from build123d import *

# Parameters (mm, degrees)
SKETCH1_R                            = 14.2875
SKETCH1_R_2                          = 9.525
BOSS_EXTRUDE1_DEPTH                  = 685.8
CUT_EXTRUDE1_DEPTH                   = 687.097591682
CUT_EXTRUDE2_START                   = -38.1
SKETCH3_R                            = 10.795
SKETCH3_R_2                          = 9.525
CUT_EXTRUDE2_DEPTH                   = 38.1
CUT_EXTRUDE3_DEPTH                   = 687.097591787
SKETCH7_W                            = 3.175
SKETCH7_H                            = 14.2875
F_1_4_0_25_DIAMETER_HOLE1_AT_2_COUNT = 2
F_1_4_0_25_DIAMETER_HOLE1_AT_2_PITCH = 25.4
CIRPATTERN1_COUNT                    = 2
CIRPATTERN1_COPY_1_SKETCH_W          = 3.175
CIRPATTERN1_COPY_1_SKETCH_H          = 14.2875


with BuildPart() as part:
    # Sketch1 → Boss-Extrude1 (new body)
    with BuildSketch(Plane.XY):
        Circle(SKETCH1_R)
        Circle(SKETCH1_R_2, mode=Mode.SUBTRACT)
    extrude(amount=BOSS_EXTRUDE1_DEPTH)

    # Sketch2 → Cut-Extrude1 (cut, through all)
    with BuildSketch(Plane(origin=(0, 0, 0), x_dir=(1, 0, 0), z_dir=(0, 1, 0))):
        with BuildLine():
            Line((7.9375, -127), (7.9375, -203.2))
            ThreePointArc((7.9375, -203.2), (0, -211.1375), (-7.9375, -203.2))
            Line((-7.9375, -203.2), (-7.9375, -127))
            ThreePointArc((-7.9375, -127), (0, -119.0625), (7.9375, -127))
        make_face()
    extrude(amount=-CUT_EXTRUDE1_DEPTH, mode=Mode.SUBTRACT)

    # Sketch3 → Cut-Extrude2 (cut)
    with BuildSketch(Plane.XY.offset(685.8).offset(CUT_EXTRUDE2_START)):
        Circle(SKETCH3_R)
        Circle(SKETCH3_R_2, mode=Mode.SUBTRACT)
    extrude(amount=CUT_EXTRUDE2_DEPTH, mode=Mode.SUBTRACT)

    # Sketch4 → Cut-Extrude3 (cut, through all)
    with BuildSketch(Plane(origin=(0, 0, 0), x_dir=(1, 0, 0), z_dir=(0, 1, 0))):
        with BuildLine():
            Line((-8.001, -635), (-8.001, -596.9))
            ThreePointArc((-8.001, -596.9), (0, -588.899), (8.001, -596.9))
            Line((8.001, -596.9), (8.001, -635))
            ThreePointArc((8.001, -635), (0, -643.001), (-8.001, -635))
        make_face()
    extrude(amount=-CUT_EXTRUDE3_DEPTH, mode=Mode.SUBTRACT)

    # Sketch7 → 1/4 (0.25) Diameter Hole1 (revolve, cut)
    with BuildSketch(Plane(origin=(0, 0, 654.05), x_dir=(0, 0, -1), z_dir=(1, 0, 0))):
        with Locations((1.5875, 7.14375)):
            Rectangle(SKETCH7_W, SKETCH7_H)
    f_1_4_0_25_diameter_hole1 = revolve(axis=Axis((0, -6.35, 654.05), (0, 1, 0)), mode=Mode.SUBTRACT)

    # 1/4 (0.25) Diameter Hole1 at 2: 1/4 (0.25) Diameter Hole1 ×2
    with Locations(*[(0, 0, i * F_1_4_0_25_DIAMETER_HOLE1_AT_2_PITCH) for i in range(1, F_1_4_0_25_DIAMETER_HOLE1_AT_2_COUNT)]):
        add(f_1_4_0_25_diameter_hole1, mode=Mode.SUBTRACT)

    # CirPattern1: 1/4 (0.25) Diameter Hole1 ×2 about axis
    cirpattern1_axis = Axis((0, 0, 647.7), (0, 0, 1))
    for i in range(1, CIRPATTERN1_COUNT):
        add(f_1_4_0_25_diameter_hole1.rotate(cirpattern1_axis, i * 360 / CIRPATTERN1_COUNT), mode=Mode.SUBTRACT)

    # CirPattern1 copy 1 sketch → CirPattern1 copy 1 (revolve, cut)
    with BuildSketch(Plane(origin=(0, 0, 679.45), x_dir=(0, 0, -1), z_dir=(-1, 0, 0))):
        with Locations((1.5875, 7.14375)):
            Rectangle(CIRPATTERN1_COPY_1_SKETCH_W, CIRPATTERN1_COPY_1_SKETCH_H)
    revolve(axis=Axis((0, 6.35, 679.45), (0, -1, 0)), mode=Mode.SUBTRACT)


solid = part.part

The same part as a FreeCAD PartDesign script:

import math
import FreeCAD as App
import Part
import Sketcher
Q = App.Units.Quantity

doc = App.newDocument("Part")
body = doc.addObject("PartDesign::Body", "Body")

# Sketch on XY plane
sketch1 = body.newObject("Sketcher::SketchObject", "Sketch")
sketch1.AttachmentSupport = (doc.getObject("XY_Plane"), [""])
sketch1.MapMode = "FlatFace"
sketch1.addGeometry(Part.Circle(App.Vector(0, 0, 0), App.Vector(0, 0, 1), 14), False)
sketch1.addGeometry(Part.Circle(App.Vector(0, 0, 0), App.Vector(0, 0, 1), 10), False)
sketch1.addConstraint(Sketcher.Constraint("Coincident", 0, 3, -1, 1))
sketch1.addConstraint(Sketcher.Constraint("Coincident", 1, 3, -1, 1))
sketch1.addConstraint(Sketcher.Constraint("Diameter", 1, Q("0.75 in")))
sketch1.addConstraint(Sketcher.Constraint("Diameter", 0, Q("1.125 in")))
pad1 = body.newObject("PartDesign::Pad", "Pad")
pad1.Profile = sketch1
pad1.Length = Q("27 in")

# Sketch on XZ plane
sketch2 = body.newObject("Sketcher::SketchObject", "Sketch001")
sketch2.AttachmentSupport = (doc.getObject("XZ_Plane"), [""])
sketch2.MapMode = "FlatFace"
sketch2.addGeometry(Part.LineSegment(App.Vector(8, 203, 0), App.Vector(8, 127, 0)), False)
sketch2.addGeometry(Part.ArcOfCircle(Part.Circle(App.Vector(0, 127, 0), App.Vector(0, 0, 1), 8), math.radians(180), math.radians(360)), False)
sketch2.addGeometry(Part.LineSegment(App.Vector(-8, 127, 0), App.Vector(-8, 203, 0)), False)
sketch2.addGeometry(Part.ArcOfCircle(Part.Circle(App.Vector(0, 203, 0), App.Vector(0, 0, 1), 8), math.radians(0), math.radians(180)), False)
sketch2.addConstraint(Sketcher.Constraint("Tangent", 0, 2, 1, 2))
sketch2.addConstraint(Sketcher.Constraint("Tangent", 1, 1, 2, 1))
sketch2.addConstraint(Sketcher.Constraint("Tangent", 2, 2, 3, 2))
sketch2.addConstraint(Sketcher.Constraint("Tangent", 3, 1, 0, 1))
sketch2.addConstraint(Sketcher.Constraint("Vertical", 0))
sketch2.addConstraint(Sketcher.Constraint("Vertical", 2))
sketch2.addConstraint(Sketcher.Constraint("PointOnObject", 1, 3, -2))
sketch2.addConstraint(Sketcher.Constraint("DistanceY", 0, 2, 0, 1, Q("3 in")))
sketch2.addConstraint(Sketcher.Constraint("DistanceY", -1, 1, 1, 3, Q("5 in")))
sketch2.addConstraint(Sketcher.Constraint("Radius", 1, Q("0.3125 in")))
pocket1 = body.newObject("PartDesign::Pocket", "Pocket")
pocket1.Profile = sketch2
pocket1.Type = "ThroughAll"
pocket1.Reversed = True

# Sketch on XY plane
sketch3 = body.newObject("Sketcher::SketchObject", "Sketch002")
sketch3.AttachmentSupport = (doc.getObject("XY_Plane"), [""])
sketch3.MapMode = "FlatFace"
sketch3.AttachmentOffset = App.Placement(App.Vector(0, 0, 25.5 * 25.4), App.Rotation())
sketch3.addGeometry(Part.Circle(App.Vector(0, 0, 0), App.Vector(0, 0, 1), 11), False)
sketch3.addGeometry(Part.Circle(App.Vector(0, 0, 0), App.Vector(0, 0, 1), 10), False)
sketch3.addConstraint(Sketcher.Constraint("Coincident", 0, 3, -1, 1))
sketch3.addConstraint(Sketcher.Constraint("Coincident", 1, 3, -1, 1))
sketch3.addConstraint(Sketcher.Constraint("Diameter", 0, Q("0.85 in")))
sketch3.addConstraint(Sketcher.Constraint("Diameter", 1, Q("0.75 in")))
pocket2 = body.newObject("PartDesign::Pocket", "Pocket001")
pocket2.Profile = sketch3
pocket2.Length = Q("1.5 in")
pocket2.Reversed = True

# Sketch on XZ plane
sketch4 = body.newObject("Sketcher::SketchObject", "Sketch003")
sketch4.AttachmentSupport = (doc.getObject("XZ_Plane"), [""])
sketch4.MapMode = "FlatFace"
sketch4.addGeometry(Part.LineSegment(App.Vector(-8, 597, 0), App.Vector(-8, 635, 0)), False)
sketch4.addGeometry(Part.ArcOfCircle(Part.Circle(App.Vector(0, 635, 0), App.Vector(0, 0, 1), 8), math.radians(0), math.radians(180)), False)
sketch4.addGeometry(Part.LineSegment(App.Vector(8, 635, 0), App.Vector(8, 597, 0)), False)
sketch4.addGeometry(Part.ArcOfCircle(Part.Circle(App.Vector(0, 597, 0), App.Vector(0, 0, 1), 8), math.radians(180), math.radians(360)), False)
sketch4.addConstraint(Sketcher.Constraint("Tangent", 0, 2, 1, 2))
sketch4.addConstraint(Sketcher.Constraint("Tangent", 1, 1, 2, 1))
sketch4.addConstraint(Sketcher.Constraint("Tangent", 2, 2, 3, 2))
sketch4.addConstraint(Sketcher.Constraint("Tangent", 3, 1, 0, 1))
sketch4.addConstraint(Sketcher.Constraint("Vertical", 0))
sketch4.addConstraint(Sketcher.Constraint("Vertical", 2))
sketch4.addConstraint(Sketcher.Constraint("PointOnObject", 1, 3, -2))
sketch4.addConstraint(Sketcher.Constraint("DistanceY", 0, 1, 0, 2, Q("1.5 in")))
sketch4.addConstraint(Sketcher.Constraint("DistanceY", -1, 1, 1, 3, Q("25 in")))
sketch4.addConstraint(Sketcher.Constraint("Radius", 1, Q("0.315 in")))
pocket3 = body.newObject("PartDesign::Pocket", "Pocket002")
pocket3.Profile = sketch4
pocket3.Type = "ThroughAll"
pocket3.Reversed = True

# Sketch on YZ plane
sketch5 = body.newObject("Sketcher::SketchObject", "Sketch004")
sketch5.AttachmentSupport = (doc.getObject("YZ_Plane"), [""])
sketch5.MapMode = "FlatFace"
sketch5.addGeometry(Part.LineSegment(App.Vector(14.3, 654, 0), App.Vector(0, 654, 0)), False)
sketch5.addGeometry(Part.LineSegment(App.Vector(0, 654, 0), App.Vector(0, 650.9, 0)), False)
sketch5.addGeometry(Part.LineSegment(App.Vector(0, 650.9, 0), App.Vector(14.3, 650.9, 0)), False)
sketch5.addGeometry(Part.LineSegment(App.Vector(14.3, 650.9, 0), App.Vector(14.3, 654, 0)), False)
sketch5.addGeometry(Part.LineSegment(App.Vector(0, 654, 0), App.Vector(14.3, 654, 0)), True)  # axis
sketch5.addConstraint(Sketcher.Constraint("Coincident", 0, 2, 1, 1))
sketch5.addConstraint(Sketcher.Constraint("Coincident", 1, 2, 2, 1))
sketch5.addConstraint(Sketcher.Constraint("Coincident", 2, 2, 3, 1))
sketch5.addConstraint(Sketcher.Constraint("Coincident", 3, 2, 0, 1))
sketch5.addConstraint(Sketcher.Constraint("Horizontal", 0))
sketch5.addConstraint(Sketcher.Constraint("Vertical", 1))
sketch5.addConstraint(Sketcher.Constraint("Horizontal", 2))
sketch5.addConstraint(Sketcher.Constraint("Vertical", 3))
sketch5.addConstraint(Sketcher.Constraint("Horizontal", 4))
sketch5.addConstraint(Sketcher.Constraint("Coincident", 4, 1, 0, 2))
sketch5.addConstraint(Sketcher.Constraint("PointOnObject", 0, 2, -2))
sketch5.addConstraint(Sketcher.Constraint("Vertical", 2, 2, 4, 2))
sketch5.addConstraint(Sketcher.Constraint("DistanceX", 0, 2, 0, 1, Q("0.5625 in")))
sketch5.addConstraint(Sketcher.Constraint("DistanceY", 1, 2, 1, 1, Q("0.125 in")))
sketch5.addConstraint(Sketcher.Constraint("DistanceY", -1, 1, 0, 2, Q("25.75 in")))
groove = body.newObject("PartDesign::Groove", "Groove")
groove.Profile = sketch5
groove.ReferenceAxis = (sketch5, ["Axis0"])
groove.Angle = 360
doc.recompute()

linearpattern = body.newObject("PartDesign::LinearPattern", "LinearPattern")
linearpattern.Originals = [groove]
linearpattern.Direction = (doc.getObject("Z_Axis"), [""])
linearpattern.Mode = "offset"
linearpattern.Offset = Q("1 in")
linearpattern.Occurrences = 2
body.Tip = linearpattern
doc.recompute()

polarpattern = body.newObject("PartDesign::PolarPattern", "PolarPattern")
polarpattern.Originals = [groove]
polarpattern.Axis = (doc.getObject("Z_Axis"), [""])
polarpattern.Angle = 360
polarpattern.Occurrences = 2
body.Tip = polarpattern

# Sketch on YZ plane
sketch6 = body.newObject("Sketcher::SketchObject", "Sketch005")
sketch6.AttachmentSupport = (doc.getObject("YZ_Plane"), [""])
sketch6.MapMode = "FlatFace"
sketch6.addGeometry(Part.LineSegment(App.Vector(-14.3, 679.5, 0), App.Vector(0, 679.5, 0)), False)
sketch6.addGeometry(Part.LineSegment(App.Vector(0, 679.5, 0), App.Vector(0, 676.3, 0)), False)
sketch6.addGeometry(Part.LineSegment(App.Vector(0, 676.3, 0), App.Vector(-14.3, 676.3, 0)), False)
sketch6.addGeometry(Part.LineSegment(App.Vector(-14.3, 676.3, 0), App.Vector(-14.3, 679.5, 0)), False)
sketch6.addGeometry(Part.LineSegment(App.Vector(0, 679.5, 0), App.Vector(-14.3, 679.5, 0)), True)  # axis
sketch6.addConstraint(Sketcher.Constraint("Coincident", 0, 2, 1, 1))
sketch6.addConstraint(Sketcher.Constraint("Coincident", 1, 2, 2, 1))
sketch6.addConstraint(Sketcher.Constraint("Coincident", 2, 2, 3, 1))
sketch6.addConstraint(Sketcher.Constraint("Coincident", 3, 2, 0, 1))
sketch6.addConstraint(Sketcher.Constraint("Horizontal", 0))
sketch6.addConstraint(Sketcher.Constraint("Vertical", 1))
sketch6.addConstraint(Sketcher.Constraint("Horizontal", 2))
sketch6.addConstraint(Sketcher.Constraint("Vertical", 3))
sketch6.addConstraint(Sketcher.Constraint("Horizontal", 4))
sketch6.addConstraint(Sketcher.Constraint("Coincident", 4, 1, 0, 2))
sketch6.addConstraint(Sketcher.Constraint("PointOnObject", 0, 2, -2))
sketch6.addConstraint(Sketcher.Constraint("Vertical", 2, 2, 4, 2))
sketch6.addConstraint(Sketcher.Constraint("DistanceX", 0, 1, 0, 2, Q("0.5625 in")))
sketch6.addConstraint(Sketcher.Constraint("DistanceY", 1, 2, 1, 1, Q("0.125 in")))
sketch6.addConstraint(Sketcher.Constraint("DistanceY", -1, 1, 0, 2, Q("26.75 in")))
groove2 = body.newObject("PartDesign::Groove", "Groove001")
groove2.Profile = sketch6
groove2.ReferenceAxis = (sketch6, ["Axis0"])
groove2.Angle = 360

doc.recompute()
